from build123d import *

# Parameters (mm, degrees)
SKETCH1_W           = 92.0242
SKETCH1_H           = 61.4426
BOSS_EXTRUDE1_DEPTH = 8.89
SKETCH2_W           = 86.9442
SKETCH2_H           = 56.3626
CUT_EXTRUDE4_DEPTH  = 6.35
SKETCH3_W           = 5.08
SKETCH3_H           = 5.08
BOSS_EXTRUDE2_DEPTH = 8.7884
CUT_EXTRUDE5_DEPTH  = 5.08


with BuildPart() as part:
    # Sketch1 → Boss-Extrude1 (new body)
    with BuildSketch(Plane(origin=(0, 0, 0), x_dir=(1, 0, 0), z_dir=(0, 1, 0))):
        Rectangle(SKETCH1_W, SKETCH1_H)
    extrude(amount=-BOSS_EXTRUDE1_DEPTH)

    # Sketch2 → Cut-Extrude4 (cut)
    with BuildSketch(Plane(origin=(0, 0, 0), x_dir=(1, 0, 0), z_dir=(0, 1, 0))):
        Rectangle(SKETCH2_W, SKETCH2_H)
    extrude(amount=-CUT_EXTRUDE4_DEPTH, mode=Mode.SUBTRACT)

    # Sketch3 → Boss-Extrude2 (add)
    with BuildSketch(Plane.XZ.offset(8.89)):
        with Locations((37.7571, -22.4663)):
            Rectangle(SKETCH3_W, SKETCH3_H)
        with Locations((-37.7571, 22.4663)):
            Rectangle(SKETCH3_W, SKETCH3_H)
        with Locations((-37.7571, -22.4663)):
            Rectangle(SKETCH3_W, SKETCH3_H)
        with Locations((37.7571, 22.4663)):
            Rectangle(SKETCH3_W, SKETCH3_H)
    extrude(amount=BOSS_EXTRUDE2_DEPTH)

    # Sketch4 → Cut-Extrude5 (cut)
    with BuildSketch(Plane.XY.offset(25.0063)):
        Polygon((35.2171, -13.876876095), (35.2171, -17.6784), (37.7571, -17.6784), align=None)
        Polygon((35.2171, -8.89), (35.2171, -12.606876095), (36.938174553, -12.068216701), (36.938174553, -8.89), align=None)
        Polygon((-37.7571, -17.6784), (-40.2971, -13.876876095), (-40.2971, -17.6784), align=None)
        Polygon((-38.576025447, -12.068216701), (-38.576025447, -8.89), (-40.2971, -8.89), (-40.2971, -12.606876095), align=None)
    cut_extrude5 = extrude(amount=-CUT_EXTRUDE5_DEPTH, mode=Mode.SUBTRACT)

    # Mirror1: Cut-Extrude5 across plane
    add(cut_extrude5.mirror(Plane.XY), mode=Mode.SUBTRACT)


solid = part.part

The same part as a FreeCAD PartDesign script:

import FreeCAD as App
import Part
import Sketcher

V = App.Vector
Q = App.Units.Quantity


def add_polygon(sketch, points):
    """Adds a closed chain of lines whose ends are joined by coincident constraints."""
    first, n = sketch.GeometryCount, len(points)
    for a, b in zip(points, points[1:] + points[:1]):
        sketch.addGeometry(Part.LineSegment(App.Vector(*a, 0), App.Vector(*b, 0)), False)
    for i in range(n):
        sketch.addConstraint(Sketcher.Constraint("Coincident", first + i, 2, first + (i + 1) % n, 1))

doc = App.newDocument("Part")
body = doc.addObject("PartDesign::Body", "Body")

# Sketch on XZ plane
sketch1 = doc.addObject("Sketcher::SketchObject", "Sketch")
body.addObject(sketch1)
sketch1.AttachmentSupport = (doc.XZ_Plane, [""])
sketch1.MapMode = "FlatFace"
add_polygon(sketch1, [(-46, -31), (-46, 31), (46, 31), (46, -31)])  # lines 0-3
sketch1.addConstraint(Sketcher.Constraint("Vertical", 0))
sketch1.addConstraint(Sketcher.Constraint("Horizontal", 1))
sketch1.addConstraint(Sketcher.Constraint("Vertical", 2))
sketch1.addConstraint(Sketcher.Constraint("Horizontal", 3))
sketch1.addConstraint(Sketcher.Constraint("Symmetric", 0, 2, 2, 2, -1, 1))
sketch1.addConstraint(Sketcher.Constraint("DistanceX", 1, 1, 1, 2, Q("3.623 in")))
sketch1.addConstraint(Sketcher.Constraint("DistanceY", 0, 1, 0, 2, Q("2.419 in")))
pad1 = doc.addObject("PartDesign::Pad", "Pad")
body.addObject(pad1)
pad1.Profile = sketch1
pad1.Length = Q("0.35 in")

# Sketch on XZ plane
sketch2 = doc.addObject("Sketcher::SketchObject", "Sketch001")
body.addObject(sketch2)
sketch2.AttachmentSupport = (doc.XZ_Plane, [""])
sketch2.MapMode = "FlatFace"
add_polygon(sketch2, [(-43, -28), (-43, 28), (43, 28), (43, -28)])  # lines 0-3
sketch2.addConstraint(Sketcher.Constraint("Vertical", 0))
sketch2.addConstraint(Sketcher.Constraint("Horizontal", 1))
sketch2.addConstraint(Sketcher.Constraint("Vertical", 2))
sketch2.addConstraint(Sketcher.Constraint("Horizontal", 3))
sketch2.addConstraint(Sketcher.Constraint("Symmetric", 0, 2, 2, 2, -1, 1))
sketch2.addConstraint(Sketcher.Constraint("DistanceX", 1, 1, 1, 2, Q("3.423 in")))
sketch2.addConstraint(Sketcher.Constraint("DistanceY", 0, 1, 0, 2, Q("2.219 in")))
pocket1 = doc.addObject("PartDesign::Pocket", "Pocket")
body.addObject(pocket1)
pocket1.Profile = sketch2
pocket1.Length = Q("0.25 in")
pocket1.Reversed = True

# Sketch on XZ plane
sketch3 = doc.addObject("Sketcher::SketchObject", "Sketch002")
body.addObject(sketch3)
sketch3.AttachmentSupport = (doc.XZ_Plane, [""])
sketch3.MapMode = "FlatFace"
sketch3.AttachmentOffset = App.Placement(V(0, 0, 0.35 * 25.4), App.Rotation())
add_polygon(sketch3, [(35, -20), (35, -25), (40, -25), (40, -20)])  # lines 0-3
add_polygon(sketch3, [(-40, 25), (-40, 20), (-35, 20), (-35, 25)])  # lines 4-7
add_polygon(sketch3, [(-40, -20), (-40, -25), (-35, -25), (-35, -20)])  # lines 8-11
add_polygon(sketch3, [(35, 25), (35, 20), (40, 20), (40, 25)])  # lines 12-15
sketch3.addConstraint(Sketcher.Constraint("Vertical", 0))
sketch3.addConstraint(Sketcher.Constraint("Horizontal", 1))
sketch3.addConstraint(Sketcher.Constraint("Vertical", 2))
sketch3.addConstraint(Sketcher.Constraint("Horizontal", 3))
sketch3.addConstraint(Sketcher.Constraint("Vertical", 4))
sketch3.addConstraint(Sketcher.Constraint("Horizontal", 5))
sketch3.addConstraint(Sketcher.Constraint("Vertical", 6))
sketch3.addConstraint(Sketcher.Constraint("Horizontal", 7))
sketch3.addConstraint(Sketcher.Constraint("Vertical", 8))
sketch3.addConstraint(Sketcher.Constraint("Horizontal", 9))
sketch3.addConstraint(Sketcher.Constraint("Vertical", 10))
sketch3.addConstraint(Sketcher.Constraint("Horizontal", 11))
sketch3.addConstraint(Sketcher.Constraint("Vertical", 12))
sketch3.addConstraint(Sketcher.Constraint("Horizontal", 13))
sketch3.addConstraint(Sketcher.Constraint("Vertical", 14))
sketch3.addConstraint(Sketcher.Constraint("Horizontal", 15))
sketch3.addConstraint(Sketcher.Constraint("Symmetric", 2, 2, 4, 2, -1, 1))
sketch3.addConstraint(Sketcher.Constraint("Symmetric", 0, 2, 6, 2, -1, 1))
sketch3.addConstraint(Sketcher.Constraint("Symmetric", 10, 2, 12, 2, -1, 1))
sketch3.addConstraint(Sketcher.Constraint("Symmetric", 8, 2, 14, 2, -1, 1))
sketch3.addConstraint(Sketcher.Constraint("Symmetric", 1, 2, 8, 2, -2))
sketch3.addConstraint(Sketcher.Constraint("Symmetric", 3, 2, 10, 2, -2))
sketch3.addConstraint(Sketcher.Constraint("Equal", 15, 0))
sketch3.addConstraint(Sketcher.Constraint("DistanceX", 1, 1, 1, 2, Q("0.2 in")))
sketch3.addConstraint(Sketcher.Constraint("DistanceX", 4, 2, 3, 2, Q("2.973 in")))
sketch3.addConstraint(Sketcher.Constraint("DistanceY", 3, 2, 4, 2, Q("1.569 in")))
pad2 = doc.addObject("PartDesign::Pad", "Pad001")
body.addObject(pad2)
pad2.Profile = sketch3
pad2.Length = Q("0.346 in")

# Sketch on XY plane
sketch4 = doc.addObject("Sketcher::SketchObject", "Sketch003")
body.addObject(sketch4)
sketch4.AttachmentSupport = (doc.XY_Plane, [""])
sketch4.MapMode = "FlatFace"
sketch4.AttachmentOffset = App.Placement(V(0, 0, 0.9845 * 25.4), App.Rotation())
add_polygon(sketch4, [(35.2, -13.9), (35.2, -17.7), (37.8, -17.7)])  # lines 0-2
add_polygon(sketch4, [(35.2, -8.9), (35.2, -12.6), (36.9, -12.1), (36.9, -8.9)])  # lines 3-6
add_polygon(sketch4, [(-37.8, -17.7), (-40.3, -13.9), (-40.3, -17.7)])  # lines 7-9
add_polygon(sketch4, [(-38.6, -12.1), (-38.6, -8.9), (-40.3, -8.9), (-40.3, -12.6)])  # lines 10-13
sketch4.addConstraint(Sketcher.Constraint("Vertical", 0))
sketch4.addConstraint(Sketcher.Constraint("Horizontal", 1))
sketch4.addConstraint(Sketcher.Constraint("Vertical", 3))
sketch4.addConstraint(Sketcher.Constraint("Vertical", 5))
sketch4.addConstraint(Sketcher.Constraint("Horizontal", 6))
sketch4.addConstraint(Sketcher.Constraint("Vertical", 8))
sketch4.addConstraint(Sketcher.Constraint("Horizontal", 9))
sketch4.addConstraint(Sketcher.Constraint("Vertical", 10))
sketch4.addConstraint(Sketcher.Constraint("Horizontal", 11))
sketch4.addConstraint(Sketcher.Constraint("Vertical", 12))
sketch4.addConstraint(Sketcher.Constraint("Symmetric", 1, 2, 9, 2, -2))
sketch4.addConstraint(Sketcher.Constraint("Parallel", 2, 7))
sketch4.addConstraint(Sketcher.Constraint("Parallel", 4, 13))
sketch4.addConstraint(Sketcher.Constraint("Horizontal", 2, 2, 7, 2))
sketch4.addConstraint(Sketcher.Constraint("Horizontal", 6, 2, 10, 2))
sketch4.addConstraint(Sketcher.Constraint("Horizontal", 3, 2, 12, 2))
sketch4.addConstraint(Sketcher.Constraint("Horizontal", 4, 2, 13, 2))
sketch4.addConstraint(Sketcher.Constraint("Vertical", 2, 2, 3, 2))
sketch4.addConstraint(Sketcher.Constraint("Vertical", 8, 2, 11, 2))
sketch4.addConstraint(Sketcher.Constraint("DistanceX", 1, 1, 1, 2, Q("0.1 in")))
sketch4.addConstraint(Sketcher.Constraint("Distance", 2, Q("0.18 in")))
sketch4.addConstraint(Sketcher.Constraint("DistanceY", 5, 2, -1, 1, Q("0.35 in")))
sketch4.addConstraint(Sketcher.Constraint("DistanceY", 2, 2, 3, 2, Q("0.05 in")))
sketch4.addConstraint(Sketcher.Constraint("Distance", 4, Q("0.071 in")))
sketch4.addConstraint(Sketcher.Constraint("DistanceY", 0, 2, -1, 1, Q("0.696 in")))
sketch4.addConstraint(Sketcher.Constraint("DistanceX", 7, 2, 2, 2, Q("2.973 in")))
sketch4.addConstraint(Sketcher.Constraint("DistanceX", 6, 2, 6, 1, Q("1.721075 mm")))
pocket2 = doc.addObject("PartDesign::Pocket", "Pocket001")
body.addObject(pocket2)
pocket2.Profile = sketch4
pocket2.Length = Q("0.2 in")
doc.recompute()

mirrored = doc.addObject("PartDesign::Mirrored", "Mirrored")
body.addObject(mirrored)
mirrored.Originals = [pocket2]
mirrored.MirrorPlane = (doc.XY_Plane, [""])
body.Tip = mirrored

doc.recompute()
